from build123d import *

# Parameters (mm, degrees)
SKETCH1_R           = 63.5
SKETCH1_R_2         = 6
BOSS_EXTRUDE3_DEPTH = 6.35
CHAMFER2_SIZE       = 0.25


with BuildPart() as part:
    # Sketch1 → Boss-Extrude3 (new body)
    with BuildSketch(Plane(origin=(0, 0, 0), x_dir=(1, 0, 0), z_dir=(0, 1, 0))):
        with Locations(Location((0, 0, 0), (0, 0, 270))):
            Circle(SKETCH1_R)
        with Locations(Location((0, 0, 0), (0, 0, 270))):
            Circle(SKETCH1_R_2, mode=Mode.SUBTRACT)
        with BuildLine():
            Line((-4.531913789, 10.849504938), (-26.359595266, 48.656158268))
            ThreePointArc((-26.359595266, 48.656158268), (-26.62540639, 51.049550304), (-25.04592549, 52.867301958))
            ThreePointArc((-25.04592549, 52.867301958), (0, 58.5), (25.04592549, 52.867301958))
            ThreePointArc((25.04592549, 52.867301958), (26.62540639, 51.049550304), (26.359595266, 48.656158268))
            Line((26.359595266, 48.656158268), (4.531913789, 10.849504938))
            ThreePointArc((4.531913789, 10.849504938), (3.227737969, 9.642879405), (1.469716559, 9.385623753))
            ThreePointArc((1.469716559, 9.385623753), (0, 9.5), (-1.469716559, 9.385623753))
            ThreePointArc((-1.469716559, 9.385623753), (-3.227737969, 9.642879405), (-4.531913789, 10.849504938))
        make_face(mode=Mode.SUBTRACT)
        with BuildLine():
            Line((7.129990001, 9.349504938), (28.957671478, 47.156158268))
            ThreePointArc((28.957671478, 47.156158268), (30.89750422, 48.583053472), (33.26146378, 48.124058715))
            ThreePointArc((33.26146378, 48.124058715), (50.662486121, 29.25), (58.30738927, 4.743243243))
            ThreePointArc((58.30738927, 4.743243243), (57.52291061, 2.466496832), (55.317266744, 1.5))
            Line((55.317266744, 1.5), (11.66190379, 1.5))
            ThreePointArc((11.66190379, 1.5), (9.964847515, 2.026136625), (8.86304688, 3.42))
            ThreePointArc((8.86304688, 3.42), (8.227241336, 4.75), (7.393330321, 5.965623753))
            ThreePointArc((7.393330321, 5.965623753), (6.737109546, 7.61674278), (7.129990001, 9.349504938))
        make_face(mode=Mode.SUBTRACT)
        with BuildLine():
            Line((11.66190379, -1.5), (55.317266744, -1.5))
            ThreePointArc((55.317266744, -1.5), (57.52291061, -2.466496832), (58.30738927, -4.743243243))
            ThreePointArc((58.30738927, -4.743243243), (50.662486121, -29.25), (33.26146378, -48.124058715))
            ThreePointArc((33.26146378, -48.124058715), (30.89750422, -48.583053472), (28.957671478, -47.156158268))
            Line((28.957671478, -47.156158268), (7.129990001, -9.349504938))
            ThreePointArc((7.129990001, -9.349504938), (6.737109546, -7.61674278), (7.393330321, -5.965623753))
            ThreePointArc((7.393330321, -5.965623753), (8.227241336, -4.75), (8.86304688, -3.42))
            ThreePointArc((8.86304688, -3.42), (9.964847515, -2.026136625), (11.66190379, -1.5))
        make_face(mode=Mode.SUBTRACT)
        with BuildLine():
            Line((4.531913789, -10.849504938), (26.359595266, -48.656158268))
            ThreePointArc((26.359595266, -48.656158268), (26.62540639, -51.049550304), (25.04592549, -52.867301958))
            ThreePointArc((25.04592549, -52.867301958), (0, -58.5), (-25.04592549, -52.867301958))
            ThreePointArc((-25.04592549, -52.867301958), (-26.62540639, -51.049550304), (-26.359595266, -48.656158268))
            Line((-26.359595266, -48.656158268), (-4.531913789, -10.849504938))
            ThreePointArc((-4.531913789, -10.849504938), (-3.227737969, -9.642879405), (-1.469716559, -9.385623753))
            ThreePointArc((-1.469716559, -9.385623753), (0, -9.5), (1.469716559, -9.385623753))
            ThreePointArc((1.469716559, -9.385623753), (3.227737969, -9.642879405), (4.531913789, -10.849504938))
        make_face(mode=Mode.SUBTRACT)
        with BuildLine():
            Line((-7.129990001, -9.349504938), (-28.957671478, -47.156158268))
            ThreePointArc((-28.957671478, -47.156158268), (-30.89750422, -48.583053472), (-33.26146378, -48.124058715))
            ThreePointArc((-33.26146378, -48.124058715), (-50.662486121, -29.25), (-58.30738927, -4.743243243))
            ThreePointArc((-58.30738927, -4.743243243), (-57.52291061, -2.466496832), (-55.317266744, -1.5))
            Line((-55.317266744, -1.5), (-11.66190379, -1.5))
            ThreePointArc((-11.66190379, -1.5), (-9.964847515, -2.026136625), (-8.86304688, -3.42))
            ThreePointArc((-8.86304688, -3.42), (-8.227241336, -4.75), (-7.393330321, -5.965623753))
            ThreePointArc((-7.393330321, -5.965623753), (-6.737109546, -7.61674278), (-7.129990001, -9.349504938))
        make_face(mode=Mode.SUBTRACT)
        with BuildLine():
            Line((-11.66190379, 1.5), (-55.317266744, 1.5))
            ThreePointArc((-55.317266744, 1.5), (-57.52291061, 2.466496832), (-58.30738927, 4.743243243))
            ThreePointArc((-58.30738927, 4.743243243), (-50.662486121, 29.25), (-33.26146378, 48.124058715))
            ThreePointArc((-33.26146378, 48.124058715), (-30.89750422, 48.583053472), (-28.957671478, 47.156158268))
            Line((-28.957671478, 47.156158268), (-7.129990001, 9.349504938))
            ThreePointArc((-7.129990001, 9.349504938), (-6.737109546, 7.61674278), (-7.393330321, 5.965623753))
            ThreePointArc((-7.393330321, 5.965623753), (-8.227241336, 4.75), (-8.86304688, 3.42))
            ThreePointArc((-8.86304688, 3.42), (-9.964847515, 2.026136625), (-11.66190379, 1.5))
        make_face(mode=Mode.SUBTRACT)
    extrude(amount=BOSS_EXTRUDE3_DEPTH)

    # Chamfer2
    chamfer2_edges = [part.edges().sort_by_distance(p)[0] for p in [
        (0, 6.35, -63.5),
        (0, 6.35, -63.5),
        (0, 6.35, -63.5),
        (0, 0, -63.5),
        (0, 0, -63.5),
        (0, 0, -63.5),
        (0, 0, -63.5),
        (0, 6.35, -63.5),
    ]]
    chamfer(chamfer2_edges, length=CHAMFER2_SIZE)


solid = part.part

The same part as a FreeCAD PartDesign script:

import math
import FreeCAD as App
import Part
import Sketcher
from FreeCAD import Vector
Q = App.Units.Quantity


def edges_at(feature, points):
    """Names of the edges that pass closest to the given points."""
    edges = feature.Shape.Edges
    near = lambda p: min(range(len(edges)), key=lambda i: edges[i].distToShape(Part.Vertex(*p))[0])
    return sorted({f"Edge{near(p) + 1}" for p in points})

doc = App.newDocument("Part")
body = doc.addObject("PartDesign::Body", "Body")

sketch1 = doc.addObject("Sketcher::SketchObject", "Sketch")
body.addObject(sketch1)
sketch1.AttachmentSupport = (doc.XZ_Plane, [""])
sketch1.MapMode = "FlatFace"
sketch1.addGeometry([
    Part.Circle(Vector(0, 0, 0), Vector(0, 0, 1), 63.5),
    Part.ArcOfCircle(Part.Circle(Vector(-11.661904, -4.5, 0), Vector(0, 0, 1), 3), math.radians(21.100196), math.radians(90)),
    Part.LineSegment(Vector(-11.661904, -1.5, 0), Vector(-55.317267, -1.5, 0)),
    Part.ArcOfCircle(Part.Circle(Vector(-55.317267, -4.5, 0), Vector(0, 0, 1), 3), math.radians(90), math.radians(184.650709)),
    Part.ArcOfCircle(Part.Circle(Vector(0, 0, 0), Vector(0, 0, 1), 58.5), math.radians(-175.349291), math.radians(-124.650709)),
    Part.ArcOfCircle(Part.Circle(Vector(-31.555748, -45.656158, 0), Vector(0, 0, 1), 3), math.radians(-124.650709), math.radians(-30)),
    Part.LineSegment(Vector(-28.957671, -47.156158, 0), Vector(-7.12999, -9.349505, 0)),
    Part.ArcOfCircle(Part.Circle(Vector(-9.728066, -7.849505, 0), Vector(0, 0, 1), 3), math.radians(-30), math.radians(38.899804)),
    Part.ArcOfCircle(Part.Circle(Vector(0, 0, 0), Vector(0, 0, 1), 9.5), math.radians(-158.899804), math.radians(-141.100196)),
    Part.ArcOfCircle(Part.Circle(Vector(-1.933838, -12.349505, 0), Vector(0, 0, 1), 3), math.radians(81.100196), math.radians(150)),
    Part.LineSegment(Vector(-4.531914, -10.849505, 0), Vector(-26.359595, -48.656158, 0)),
    Part.ArcOfCircle(Part.Circle(Vector(-23.761519, -50.156158, 0), Vector(0, 0, 1), 3), math.radians(150), math.radians(244.650709)),
    Part.ArcOfCircle(Part.Circle(Vector(0, 0, 0), Vector(0, 0, 1), 58.5), math.radians(-115.349291), math.radians(-64.650709)),
    Part.ArcOfCircle(Part.Circle(Vector(23.761519, -50.156158, 0), Vector(0, 0, 1), 3), math.radians(-64.650709), math.radians(30)),
    Part.LineSegment(Vector(26.359595, -48.656158, 0), Vector(4.531914, -10.849505, 0)),
    Part.ArcOfCircle(Part.Circle(Vector(1.933838, -12.349505, 0), Vector(0, 0, 1), 3), math.radians(30), math.radians(98.899804)),
    Part.ArcOfCircle(Part.Circle(Vector(0, 0, 0), Vector(0, 0, 1), 9.5), math.radians(-98.899804), math.radians(-81.100196)),
    Part.ArcOfCircle(Part.Circle(Vector(-9.728066, 7.849505, 0), Vector(0, 0, 1), 3), math.radians(-38.899804), math.radians(30)),
    Part.LineSegment(Vector(-7.12999, 9.349505, 0), Vector(-28.957671, 47.156158, 0)),
    Part.ArcOfCircle(Part.Circle(Vector(-31.555748, 45.656158, 0), Vector(0, 0, 1), 3), math.radians(30), math.radians(124.650709)),
    Part.ArcOfCircle(Part.Circle(Vector(0, 0, 0), Vector(0, 0, 1), 58.5), math.radians(124.650709), math.radians(175.349291)),
    Part.ArcOfCircle(Part.Circle(Vector(-55.317267, 4.5, 0), Vector(0, 0, 1), 3), math.radians(175.349291), math.radians(270)),
    Part.LineSegment(Vector(-55.317267, 1.5, 0), Vector(-11.661904, 1.5, 0)),
    Part.ArcOfCircle(Part.Circle(Vector(-11.661904, 4.5, 0), Vector(0, 0, 1), 3), math.radians(-90), math.radians(-21.100196)),
    Part.ArcOfCircle(Part.Circle(Vector(0, 0, 0), Vector(0, 0, 1), 9.5), math.radians(141.100196), math.radians(158.899804)),
    Part.ArcOfCircle(Part.Circle(Vector(9.728066, -7.849505, 0), Vector(0, 0, 1), 3), math.radians(141.100196), math.radians(210)),
    Part.LineSegment(Vector(7.12999, -9.349505, 0), Vector(28.957671, -47.156158, 0)),
    Part.ArcOfCircle(Part.Circle(Vector(31.555748, -45.656158, 0), Vector(0, 0, 1), 3), math.radians(-150), math.radians(-55.349291)),
    Part.ArcOfCircle(Part.Circle(Vector(0, 0, 0), Vector(0, 0, 1), 58.5), math.radians(-55.349291), math.radians(-4.650709)),
    Part.ArcOfCircle(Part.Circle(Vector(55.317267, -4.5, 0), Vector(0, 0, 1), 3), math.radians(-4.650709), math.radians(90)),
    Part.LineSegment(Vector(55.317267, -1.5, 0), Vector(11.661904, -1.5, 0)),
    Part.ArcOfCircle(Part.Circle(Vector(11.661904, -4.5, 0), Vector(0, 0, 1), 3), math.radians(90), math.radians(158.899804)),
    Part.ArcOfCircle(Part.Circle(Vector(0, 0, 0), Vector(0, 0, 1), 9.5), math.radians(-38.899804), math.radians(-21.100196)),
    Part.Circle(Vector(0, 0, 0), Vector(0, 0, 1), 6),
    Part.ArcOfCircle(Part.Circle(Vector(1.933838, 12.349505, 0), Vector(0, 0, 1), 3), math.radians(-98.899804), math.radians(-30)),
    Part.LineSegment(Vector(4.531914, 10.849505, 0), Vector(26.359595, 48.656158, 0)),
    Part.ArcOfCircle(Part.Circle(Vector(23.761519, 50.156158, 0), Vector(0, 0, 1), 3), math.radians(-30), math.radians(64.650709)),
    Part.ArcOfCircle(Part.Circle(Vector(0, 0, 0), Vector(0, 0, 1), 58.5), math.radians(64.650709), math.radians(115.349291)),
    Part.ArcOfCircle(Part.Circle(Vector(-23.761519, 50.156158, 0), Vector(0, 0, 1), 3), math.radians(115.349291), math.radians(210)),
    Part.LineSegment(Vector(-26.359595, 48.656158, 0), Vector(-4.531914, 10.849505, 0)),
    Part.ArcOfCircle(Part.Circle(Vector(-1.933838, 12.349505, 0), Vector(0, 0, 1), 3), math.radians(-150), math.radians(-81.100196)),
    Part.ArcOfCircle(Part.Circle(Vector(0, 0, 0), Vector(0, 0, 1), 9.5), math.radians(81.100196), math.radians(98.899804)),
    Part.ArcOfCircle(Part.Circle(Vector(11.661904, 4.5, 0), Vector(0, 0, 1), 3), math.radians(-158.899804), math.radians(-90)),
    Part.LineSegment(Vector(11.661904, 1.5, 0), Vector(55.317267, 1.5, 0)),
    Part.ArcOfCircle(Part.Circle(Vector(55.317267, 4.5, 0), Vector(0, 0, 1), 3), math.radians(-90), math.radians(4.650709)),
    Part.ArcOfCircle(Part.Circle(Vector(0, 0, 0), Vector(0, 0, 1), 58.5), math.radians(4.650709), math.radians(55.349291)),
    Part.ArcOfCircle(Part.Circle(Vector(31.555748, 45.656158, 0), Vector(0, 0, 1), 3), math.radians(55.349291), math.radians(150)),
    Part.LineSegment(Vector(28.957671, 47.156158, 0), Vector(7.12999, 9.349505, 0)),
    Part.ArcOfCircle(Part.Circle(Vector(9.728066, 7.849505, 0), Vector(0, 0, 1), 3), math.radians(150), math.radians(218.899804)),
    Part.ArcOfCircle(Part.Circle(Vector(0, 0, 0), Vector(0, 0, 1), 9.5), math.radians(21.100196), math.radians(38.899804)),
], False)
sketch1.addConstraint([
    Sketcher.Constraint("Tangent", 1, 2, 2, 1),
    Sketcher.Constraint("Tangent", 2, 2, 3, 1),
    Sketcher.Constraint("Tangent", 3, 2, 4, 1),
    Sketcher.Constraint("Tangent", 4, 2, 5, 1),
    Sketcher.Constraint("Tangent", 5, 2, 6, 1),
    Sketcher.Constraint("Tangent", 6, 2, 7, 1),
    Sketcher.Constraint("Tangent", 7, 2, 8, 2),
    Sketcher.Constraint("Tangent", 8, 1, 1, 1),
    Sketcher.Constraint("Tangent", 9, 2, 10, 1),
    Sketcher.Constraint("Tangent", 10, 2, 11, 1),
    Sketcher.Constraint("Tangent", 11, 2, 12, 1),
    Sketcher.Constraint("Tangent", 12, 2, 13, 1),
    Sketcher.Constraint("Tangent", 13, 2, 14, 1),
    Sketcher.Constraint("Tangent", 14, 2, 15, 1),
    Sketcher.Constraint("Tangent", 15, 2, 16, 2),
    Sketcher.Constraint("Tangent", 16, 1, 9, 1),
    Sketcher.Constraint("Tangent", 17, 2, 18, 1),
    Sketcher.Constraint("Tangent", 18, 2, 19, 1),
    Sketcher.Constraint("Tangent", 19, 2, 20, 1),
    Sketcher.Constraint("Tangent", 20, 2, 21, 1),
    Sketcher.Constraint("Tangent", 21, 2, 22, 1),
    Sketcher.Constraint("Tangent", 22, 2, 23, 1),
    Sketcher.Constraint("Tangent", 23, 2, 24, 2),
    Sketcher.Constraint("Tangent", 24, 1, 17, 1),
    Sketcher.Constraint("Tangent", 25, 2, 26, 1),
    Sketcher.Constraint("Tangent", 26, 2, 27, 1),
    Sketcher.Constraint("Tangent", 27, 2, 28, 1),
    Sketcher.Constraint("Tangent", 28, 2, 29, 1),
    Sketcher.Constraint("Tangent", 29, 2, 30, 1),
    Sketcher.Constraint("Tangent", 30, 2, 31, 1),
    Sketcher.Constraint("Tangent", 31, 2, 32, 2),
    Sketcher.Constraint("Tangent", 32, 1, 25, 1),
    Sketcher.Constraint("Tangent", 34, 2, 35, 1),
    Sketcher.Constraint("Tangent", 35, 2, 36, 1),
    Sketcher.Constraint("Tangent", 36, 2, 37, 1),
    Sketcher.Constraint("Tangent", 37, 2, 38, 1),
    Sketcher.Constraint("Tangent", 38, 2, 39, 1),
    Sketcher.Constraint("Tangent", 39, 2, 40, 1),
    Sketcher.Constraint("Tangent", 40, 2, 41, 2),
    Sketcher.Constraint("Tangent", 41, 1, 34, 1),
    Sketcher.Constraint("Tangent", 42, 2, 43, 1),
    Sketcher.Constraint("Tangent", 43, 2, 44, 1),
    Sketcher.Constraint("Tangent", 44, 2, 45, 1),
    Sketcher.Constraint("Tangent", 45, 2, 46, 1),
    Sketcher.Constraint("Tangent", 46, 2, 47, 1),
    Sketcher.Constraint("Tangent", 47, 2, 48, 1),
    Sketcher.Constraint("Tangent", 48, 2, 49, 2),
    Sketcher.Constraint("Tangent", 49, 1, 42, 1),
    Sketcher.Constraint("Horizontal", 2),
    Sketcher.Constraint("Horizontal", 22),
    Sketcher.Constraint("Horizontal", 30),
    Sketcher.Constraint("Horizontal", 43),
    Sketcher.Constraint("Coincident", 0, 3, -1, 1),
    Sketcher.Constraint("Coincident", 4, 3, -1, 1),
    Sketcher.Constraint("Coincident", 8, 3, -1, 1),
    Sketcher.Constraint("Coincident", 12, 3, -1, 1),
    Sketcher.Constraint("Coincident", 16, 3, -1, 1),
    Sketcher.Constraint("Coincident", 20, 3, -1, 1),
    Sketcher.Constraint("Coincident", 24, 3, -1, 1),
    Sketcher.Constraint("Coincident", 28, 3, -1, 1),
    Sketcher.Constraint("Coincident", 32, 3, -1, 1),
    Sketcher.Constraint("Coincident", 33, 3, -1, 1),
    Sketcher.Constraint("Coincident", 37, 3, -1, 1),
    Sketcher.Constraint("Coincident", 41, 3, -1, 1),
    Sketcher.Constraint("Coincident", 45, 3, -1, 1),
    Sketcher.Constraint("Coincident", 49, 3, -1, 1),
    Sketcher.Constraint("Equal", 1, 3),
    Sketcher.Constraint("Equal", 3, 5),
    Sketcher.Constraint("Equal", 5, 7),
    Sketcher.Constraint("Equal", 7, 9),
    Sketcher.Constraint("Equal", 9, 11),
    Sketcher.Constraint("Equal", 4, 12),
    Sketcher.Constraint("Equal", 11, 13),
    Sketcher.Constraint("Equal", 13, 15),
    Sketcher.Constraint("Equal", 8, 16),
    Sketcher.Constraint("Equal", 15, 17),
    Sketcher.Constraint("Equal", 17, 19),
    Sketcher.Constraint("Equal", 12, 20),
    Sketcher.Constraint("Equal", 19, 21),
    Sketcher.Constraint("Equal", 21, 23),
    Sketcher.Constraint("Equal", 16, 24),
    Sketcher.Constraint("Equal", 23, 25),
    Sketcher.Constraint("Equal", 25, 27),
    Sketcher.Constraint("Equal", 20, 28),
    Sketcher.Constraint("Equal", 27, 29),
    Sketcher.Constraint("Equal", 29, 31),
    Sketcher.Constraint("Equal", 24, 32),
    Sketcher.Constraint("Equal", 31, 34),
    Sketcher.Constraint("Equal", 34, 36),
    Sketcher.Constraint("Equal", 28, 37),
    Sketcher.Constraint("Equal", 36, 38),
    Sketcher.Constraint("Equal", 38, 40),
    Sketcher.Constraint("Equal", 32, 41),
    Sketcher.Constraint("Equal", 40, 42),
    Sketcher.Constraint("Equal", 42, 44),
    Sketcher.Constraint("Equal", 37, 45),
    Sketcher.Constraint("Equal", 44, 46),
    Sketcher.Constraint("Equal", 46, 48),
    Sketcher.Constraint("Equal", 41, 49),
    Sketcher.Constraint("Symmetric", 17, 2, 25, 2, -1, 1),
    Sketcher.Constraint("Symmetric", 9, 2, 34, 2, -1, 1),
    Sketcher.Constraint("Symmetric", 13, 2, 38, 2, -1, 1),
    Sketcher.Constraint("Symmetric", 5, 2, 46, 2, -1, 1),
    Sketcher.Constraint("Symmetric", 10, 2, 13, 2, -2),
    Sketcher.Constraint("Symmetric", 6, 2, 25, 2, -2),
    Sketcher.Constraint("Parallel", 6, 10),
    Sketcher.Constraint("Horizontal", 3, 3, 29, 3),
    Sketcher.Constraint("Horizontal", 23, 3, 42, 3),
    Sketcher.Constraint("Vertical", 3, 3, 21, 3),
    Sketcher.Constraint("Equal", 6, 10),
    Sketcher.Constraint("Diameter", 0, 127.0),
    Sketcher.Constraint("Diameter", 33, 12.0),
    Sketcher.Constraint("Radius", 1, 3.0),
    Sketcher.Constraint("Radius", 4, 58.5),
    Sketcher.Constraint("Radius", 8, 9.5),
    Sketcher.Constraint("Angle", 6, Q("60 deg")),
    Sketcher.Constraint("DistanceY", 1, 3, -1, 1, 4.5),
    Sketcher.Constraint("DistanceY", 11, 2, -1, 1, 52.867302),
])
pad1 = doc.addObject("PartDesign::Pad", "Pad")
body.addObject(pad1)
pad1.Profile = sketch1
pad1.Length = 6.35
pad1.Reversed = True
doc.recompute()

chamfer = doc.addObject("PartDesign::Chamfer", "Chamfer")
body.addObject(chamfer)
chamfer.Base = (pad1, edges_at(pad1, [
    (0, 6.35, -63.5),
    (0, 6.35, -63.5),
    (0, 6.35, -63.5),
    (0, 0, -63.5),
    (0, 0, -63.5),
    (0, 0, -63.5),
    (0, 0, -63.5),
    (0, 6.35, -63.5),
]))
chamfer.Size = 0.25

doc.recompute()
